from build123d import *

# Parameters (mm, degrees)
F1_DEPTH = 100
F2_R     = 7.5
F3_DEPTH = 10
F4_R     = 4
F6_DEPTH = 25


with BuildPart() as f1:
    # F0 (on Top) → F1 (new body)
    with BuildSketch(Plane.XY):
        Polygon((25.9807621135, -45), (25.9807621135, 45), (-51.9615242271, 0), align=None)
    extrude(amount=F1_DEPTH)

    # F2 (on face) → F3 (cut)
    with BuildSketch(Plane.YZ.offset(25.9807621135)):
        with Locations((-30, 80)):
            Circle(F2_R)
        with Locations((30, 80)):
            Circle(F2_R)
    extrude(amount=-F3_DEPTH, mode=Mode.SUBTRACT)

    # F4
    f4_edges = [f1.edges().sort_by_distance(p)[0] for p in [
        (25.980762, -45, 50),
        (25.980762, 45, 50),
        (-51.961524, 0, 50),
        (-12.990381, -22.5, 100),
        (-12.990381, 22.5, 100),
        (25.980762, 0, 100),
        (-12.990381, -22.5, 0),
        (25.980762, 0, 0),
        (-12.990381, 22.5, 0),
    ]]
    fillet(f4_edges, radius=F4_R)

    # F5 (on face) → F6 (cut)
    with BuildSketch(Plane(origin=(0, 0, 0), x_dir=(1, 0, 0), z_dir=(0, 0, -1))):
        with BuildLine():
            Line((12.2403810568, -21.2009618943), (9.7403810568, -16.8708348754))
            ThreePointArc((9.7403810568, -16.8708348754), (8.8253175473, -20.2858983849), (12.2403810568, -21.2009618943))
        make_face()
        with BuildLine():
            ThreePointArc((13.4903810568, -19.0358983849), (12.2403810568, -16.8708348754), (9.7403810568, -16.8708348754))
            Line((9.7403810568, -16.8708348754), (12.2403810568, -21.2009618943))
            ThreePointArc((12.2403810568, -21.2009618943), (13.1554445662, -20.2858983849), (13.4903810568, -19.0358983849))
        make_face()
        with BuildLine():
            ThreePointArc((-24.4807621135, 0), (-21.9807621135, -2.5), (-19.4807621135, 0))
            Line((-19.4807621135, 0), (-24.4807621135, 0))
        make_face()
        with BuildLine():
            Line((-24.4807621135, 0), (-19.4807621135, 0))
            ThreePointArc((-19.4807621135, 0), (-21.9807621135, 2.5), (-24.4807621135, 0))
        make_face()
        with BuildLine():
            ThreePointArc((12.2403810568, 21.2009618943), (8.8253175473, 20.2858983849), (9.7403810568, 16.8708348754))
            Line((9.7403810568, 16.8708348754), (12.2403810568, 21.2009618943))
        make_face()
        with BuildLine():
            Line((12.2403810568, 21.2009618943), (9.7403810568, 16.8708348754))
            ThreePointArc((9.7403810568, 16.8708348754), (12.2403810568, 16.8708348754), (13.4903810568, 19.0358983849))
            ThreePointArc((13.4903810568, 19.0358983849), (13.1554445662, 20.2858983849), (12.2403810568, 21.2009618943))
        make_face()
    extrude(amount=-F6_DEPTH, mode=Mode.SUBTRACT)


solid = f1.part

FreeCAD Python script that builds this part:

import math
import FreeCAD as App
import Part
import Sketcher
from FreeCAD import Vector
Q = App.Units.Quantity


def edges_at(feature, points):
    """Names of the edges that pass closest to the given points."""
    edges = feature.Shape.Edges
    near = lambda p: min(range(len(edges)), key=lambda i: edges[i].distToShape(Part.Vertex(*p))[0])
    return sorted({f"Edge{near(p) + 1}" for p in points})


def add_polygon(sketch, points):
    """Adds a closed chain of lines whose ends are joined by coincident constraints."""
    first, n = sketch.GeometryCount, len(points)
    for a, b in zip(points, points[1:] + points[:1]):
        sketch.addGeometry(Part.LineSegment(App.Vector(*a, 0), App.Vector(*b, 0)), False)
    for i in range(n):
        sketch.addConstraint(Sketcher.Constraint("Coincident", first + i, 2, first + (i + 1) % n, 1))

doc = App.newDocument("Part")
body = doc.addObject("PartDesign::Body", "Body")

# Sketch on XY plane
sketch1 = doc.addObject("Sketcher::SketchObject", "Sketch")
body.addObject(sketch1)
sketch1.AttachmentSupport = (doc.XY_Plane, [""])
sketch1.MapMode = "FlatFace"
add_polygon(sketch1, [(26, -45), (26, 45), (-52, 0)])  # lines 0-2
sketch1.addConstraint([
    Sketcher.Constraint("Vertical", 0),
    Sketcher.Constraint("PointOnObject", 1, 2, -1),
    Sketcher.Constraint("Equal", 1, 2),
    Sketcher.Constraint("DistanceY", 0, 1, 0, 2, 90.0),
    Sketcher.Constraint("Angle", 1, Q("-150 deg")),
    Sketcher.Constraint("DistanceX", -1, 1, 0, 2, 25.980762),
])
pad1 = doc.addObject("PartDesign::Pad", "Pad")
body.addObject(pad1)
pad1.Profile = sketch1
pad1.Length = 100

# Sketch on YZ plane
sketch2 = doc.addObject("Sketcher::SketchObject", "Sketch001")
body.addObject(sketch2)
sketch2.AttachmentSupport = (doc.YZ_Plane, [""])
sketch2.MapMode = "FlatFace"
sketch2.AttachmentOffset = App.Placement(Vector(0, 0, 25.980762), App.Rotation())
sketch2.addGeometry([
    Part.Circle(Vector(-30, 80, 0), Vector(0, 0, 1), 8),
    Part.Circle(Vector(30, 80, 0), Vector(0, 0, 1), 8),
], False)
sketch2.addConstraint([
    Sketcher.Constraint("Equal", 0, 1),
    Sketcher.Constraint("Symmetric", 0, 3, 1, 3, -2),
    Sketcher.Constraint("Diameter", 0, 15.0),
    Sketcher.Constraint("DistanceX", 0, 3, -1, 1, 30.0),
    Sketcher.Constraint("DistanceY", -1, 1, 0, 3, 80.0),
])
pocket1 = doc.addObject("PartDesign::Pocket", "Pocket")
body.addObject(pocket1)
pocket1.Profile = sketch2
pocket1.Length = 10
doc.recompute()

fillet = doc.addObject("PartDesign::Fillet", "Fillet")
body.addObject(fillet)
fillet.Base = (pocket1, edges_at(pocket1, [
    (25.981, -45, 50),
    (25.981, 45, 50),
    (-51.962, 0, 50),
    (-12.99, -22.5, 100),
    (-12.99, 22.5, 100),
    (25.981, 0, 100),
    (-12.99, -22.5, 0),
    (25.981, 0, 0),
    (-12.99, 22.5, 0),
]))
fillet.Radius = 4

# Sketch on XY plane
sketch3 = doc.addObject("Sketcher::SketchObject", "Sketch002")
body.addObject(sketch3)
sketch3.AttachmentSupport = (doc.XY_Plane, [""])
sketch3.MapMode = "FlatFace"
sketch3.addGeometry([
    Part.ArcOfCircle(Part.Circle(Vector(11, 19, 0), Vector(0, 0, 1), 2.5), math.radians(60), math.radians(240)),  # 0
    Part.ArcOfCircle(Part.Circle(Vector(11, 19, 0), Vector(0, 0, 1), 2.5), math.radians(0), math.radians(60)),  # 1
    Part.ArcOfCircle(Part.Circle(Vector(11, 19, 0), Vector(0, 0, 1), 2.5), math.radians(-120), math.radians(0)),  # 2
    Part.Circle(Vector(-22, 0, 0), Vector(0, 0, 1), 2.5),  # 3
    Part.ArcOfCircle(Part.Circle(Vector(11, -19, 0), Vector(0, 0, 1), 2.5), math.radians(120), math.radians(300)),  # 4
    Part.ArcOfCircle(Part.Circle(Vector(11, -19, 0), Vector(0, 0, 1), 2.5), math.radians(0), math.radians(120)),  # 5
    Part.ArcOfCircle(Part.Circle(Vector(11, -19, 0), Vector(0, 0, 1), 2.5), math.radians(-60), math.radians(0)),  # 6
], False)
sketch3.addConstraint([
    Sketcher.Constraint("Tangent", 0, 1, 1, 2),
    Sketcher.Constraint("Tangent", 1, 1, 2, 2),
    Sketcher.Constraint("Tangent", 2, 1, 0, 2),
    Sketcher.Constraint("Tangent", 4, 1, 5, 2),
    Sketcher.Constraint("Tangent", 5, 1, 6, 2),
    Sketcher.Constraint("Tangent", 6, 1, 4, 2),
    Sketcher.Constraint("Equal", 2, 3),
    Sketcher.Constraint("Equal", 3, 4),
    Sketcher.Constraint("Symmetric", 0, 3, 4, 3, -1),
    Sketcher.Constraint("PointOnObject", 3, 3, -1),
    Sketcher.Constraint("Horizontal", 2, 3, 1, 1),
    Sketcher.Constraint("Horizontal", 6, 3, 5, 1),
    Sketcher.Constraint("Vertical", 2, 1, 4, 1),
    Sketcher.Constraint("Vertical", 0, 1, 6, 1),
    Sketcher.Constraint("Diameter", 3, 5.0),
    Sketcher.Constraint("DistanceX", 2, 1, 0, 1, 2.5),
    Sketcher.Constraint("DistanceX", 0, 3, 0, 1, 1.25),
    Sketcher.Constraint("DistanceY", -1, 1, 0, 3, 19.035898),
    Sketcher.Constraint("DistanceX", -1, 1, 0, 3, 10.990381),
    Sketcher.Constraint("DistanceX", 3, 3, -1, 1, 21.980762),
])
pocket2 = doc.addObject("PartDesign::Pocket", "Pocket001")
body.addObject(pocket2)
pocket2.Profile = sketch3
pocket2.Length = 25
pocket2.Reversed = True

doc.recompute()
